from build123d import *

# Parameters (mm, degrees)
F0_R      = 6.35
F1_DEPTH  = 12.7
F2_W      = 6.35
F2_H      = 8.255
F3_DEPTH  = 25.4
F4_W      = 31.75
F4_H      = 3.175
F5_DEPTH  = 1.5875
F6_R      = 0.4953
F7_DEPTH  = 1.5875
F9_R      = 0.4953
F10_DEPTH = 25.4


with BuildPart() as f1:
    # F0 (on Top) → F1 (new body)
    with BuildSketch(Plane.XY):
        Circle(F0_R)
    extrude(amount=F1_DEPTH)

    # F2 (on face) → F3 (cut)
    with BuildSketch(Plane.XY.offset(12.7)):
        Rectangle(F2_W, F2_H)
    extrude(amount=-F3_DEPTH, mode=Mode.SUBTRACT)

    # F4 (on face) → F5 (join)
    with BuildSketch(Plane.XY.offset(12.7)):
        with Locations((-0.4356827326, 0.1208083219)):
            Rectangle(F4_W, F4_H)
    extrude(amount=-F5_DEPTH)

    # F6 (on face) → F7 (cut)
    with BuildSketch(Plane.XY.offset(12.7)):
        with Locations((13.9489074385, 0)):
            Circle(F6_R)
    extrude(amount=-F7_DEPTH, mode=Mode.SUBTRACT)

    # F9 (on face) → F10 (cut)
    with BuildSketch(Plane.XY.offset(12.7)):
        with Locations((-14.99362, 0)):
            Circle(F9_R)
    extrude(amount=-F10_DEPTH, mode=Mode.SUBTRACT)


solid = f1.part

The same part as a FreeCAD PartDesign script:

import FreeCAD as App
import Part
import Sketcher
Q = App.Units.Quantity

doc = App.newDocument("Part")
body = doc.addObject("PartDesign::Body", "Body")

sketch1 = doc.addObject("Sketcher::SketchObject", "Sketch")
body.addObject(sketch1)
sketch1.AttachmentSupport = (doc.XY_Plane, [""])
sketch1.MapMode = "FlatFace"
sketch1.addGeometry(Part.Circle(App.Vector(0, 0, 0), App.Vector(0, 0, 1), 6), False)
sketch1.addConstraint([
    Sketcher.Constraint("Coincident", 0, 3, -1, 1),
    Sketcher.Constraint("Diameter", 0, Q("0.5 in")),
])
pad1 = doc.addObject("PartDesign::Pad", "Pad")
body.addObject(pad1)
pad1.Profile = sketch1
pad1.Length = Q("0.5 in")

sketch2 = doc.addObject("Sketcher::SketchObject", "Sketch001")
body.addObject(sketch2)
sketch2.AttachmentSupport = (doc.XY_Plane, [""])
sketch2.MapMode = "FlatFace"
sketch2.AttachmentOffset = App.Placement(App.Vector(0, 0, 0.5 * 25.4), App.Rotation())
sketch2.addGeometry([
    Part.LineSegment(App.Vector(-3, 4, 0), App.Vector(-3, -4, 0)),
    Part.LineSegment(App.Vector(-3, -4, 0), App.Vector(3, -4, 0)),
    Part.LineSegment(App.Vector(3, -4, 0), App.Vector(3, 4, 0)),
    Part.LineSegment(App.Vector(3, 4, 0), App.Vector(-3, 4, 0)),
], False)
sketch2.addConstraint([
    Sketcher.Constraint("Coincident", 0, 2, 1, 1),
    Sketcher.Constraint("Coincident", 1, 2, 2, 1),
    Sketcher.Constraint("Coincident", 2, 2, 3, 1),
    Sketcher.Constraint("Coincident", 3, 2, 0, 1),
    Sketcher.Constraint("Vertical", 0),
    Sketcher.Constraint("Horizontal", 1),
    Sketcher.Constraint("Vertical", 2),
    Sketcher.Constraint("Horizontal", 3),
    Sketcher.Constraint("Symmetric", 0, 2, 2, 2, -1, 1),
    Sketcher.Constraint("DistanceX", 1, 1, 1, 2, Q("0.25 in")),
    Sketcher.Constraint("DistanceY", 0, 2, 0, 1, Q("0.325 in")),
])
pocket1 = doc.addObject("PartDesign::Pocket", "Pocket")
body.addObject(pocket1)
pocket1.Profile = sketch2
pocket1.Length = Q("1 in")

sketch3 = doc.addObject("Sketcher::SketchObject", "Sketch002")
body.addObject(sketch3)
sketch3.AttachmentSupport = (doc.XY_Plane, [""])
sketch3.MapMode = "FlatFace"
sketch3.AttachmentOffset = App.Placement(App.Vector(0, 0, 0.5 * 25.4), App.Rotation())
sketch3.addGeometry([
    Part.LineSegment(App.Vector(-16.3, 1.7, 0), App.Vector(-16.3, -1.5, 0)),
    Part.LineSegment(App.Vector(-16.3, -1.5, 0), App.Vector(15.4, -1.5, 0)),
    Part.LineSegment(App.Vector(15.4, -1.5, 0), App.Vector(15.4, 1.7, 0)),
    Part.LineSegment(App.Vector(15.4, 1.7, 0), App.Vector(-16.3, 1.7, 0)),
], False)
sketch3.addConstraint([
    Sketcher.Constraint("Coincident", 0, 2, 1, 1),
    Sketcher.Constraint("Coincident", 1, 2, 2, 1),
    Sketcher.Constraint("Coincident", 2, 2, 3, 1),
    Sketcher.Constraint("Coincident", 3, 2, 0, 1),
    Sketcher.Constraint("Vertical", 0),
    Sketcher.Constraint("Horizontal", 1),
    Sketcher.Constraint("Vertical", 2),
    Sketcher.Constraint("Horizontal", 3),
    Sketcher.Constraint("DistanceX", 1, 1, 1, 2, Q("1.25 in")),
    Sketcher.Constraint("DistanceY", 0, 2, 0, 1, Q("0.125 in")),
    Sketcher.Constraint("DistanceY", 0, 2, -1, 1, Q("1.466692 mm")),
    Sketcher.Constraint("DistanceX", 0, 2, -1, 1, Q("16.310683 mm")),
])
pad2 = doc.addObject("PartDesign::Pad", "Pad001")
body.addObject(pad2)
pad2.Profile = sketch3
pad2.Length = Q("0.0625 in")
pad2.Reversed = True

sketch4 = doc.addObject("Sketcher::SketchObject", "Sketch003")
body.addObject(sketch4)
sketch4.AttachmentSupport = (doc.XY_Plane, [""])
sketch4.MapMode = "FlatFace"
sketch4.AttachmentOffset = App.Placement(App.Vector(0, 0, 0.5 * 25.4), App.Rotation())
sketch4.addGeometry(Part.Circle(App.Vector(13.95, 0, 0), App.Vector(0, 0, 1), 0.5), False)
sketch4.addConstraint([
    Sketcher.Constraint("PointOnObject", 0, 3, -1),
    Sketcher.Constraint("Diameter", 0, Q("0.039 in")),
    Sketcher.Constraint("DistanceX", -1, 1, 0, 3, Q("13.948907 mm")),
])
pocket2 = doc.addObject("PartDesign::Pocket", "Pocket001")
body.addObject(pocket2)
pocket2.Profile = sketch4
pocket2.Length = Q("0.0625 in")

sketch5 = doc.addObject("Sketcher::SketchObject", "Sketch004")
body.addObject(sketch5)
sketch5.AttachmentSupport = (doc.XY_Plane, [""])
sketch5.MapMode = "FlatFace"
sketch5.AttachmentOffset = App.Placement(App.Vector(0, 0, 0.5 * 25.4), App.Rotation())
sketch5.addGeometry(Part.Circle(App.Vector(-14.99, 0, 0), App.Vector(0, 0, 1), 0.5), False)
sketch5.addConstraint([
    Sketcher.Constraint("PointOnObject", 0, 3, -1),
    Sketcher.Constraint("Diameter", 0, Q("0.039 in")),
    Sketcher.Constraint("DistanceX", 0, 3, -1, 1, Q("0.5903 in")),
])
pocket3 = doc.addObject("PartDesign::Pocket", "Pocket002")
body.addObject(pocket3)
pocket3.Profile = sketch5
pocket3.Length = Q("1 in")

doc.recompute()
